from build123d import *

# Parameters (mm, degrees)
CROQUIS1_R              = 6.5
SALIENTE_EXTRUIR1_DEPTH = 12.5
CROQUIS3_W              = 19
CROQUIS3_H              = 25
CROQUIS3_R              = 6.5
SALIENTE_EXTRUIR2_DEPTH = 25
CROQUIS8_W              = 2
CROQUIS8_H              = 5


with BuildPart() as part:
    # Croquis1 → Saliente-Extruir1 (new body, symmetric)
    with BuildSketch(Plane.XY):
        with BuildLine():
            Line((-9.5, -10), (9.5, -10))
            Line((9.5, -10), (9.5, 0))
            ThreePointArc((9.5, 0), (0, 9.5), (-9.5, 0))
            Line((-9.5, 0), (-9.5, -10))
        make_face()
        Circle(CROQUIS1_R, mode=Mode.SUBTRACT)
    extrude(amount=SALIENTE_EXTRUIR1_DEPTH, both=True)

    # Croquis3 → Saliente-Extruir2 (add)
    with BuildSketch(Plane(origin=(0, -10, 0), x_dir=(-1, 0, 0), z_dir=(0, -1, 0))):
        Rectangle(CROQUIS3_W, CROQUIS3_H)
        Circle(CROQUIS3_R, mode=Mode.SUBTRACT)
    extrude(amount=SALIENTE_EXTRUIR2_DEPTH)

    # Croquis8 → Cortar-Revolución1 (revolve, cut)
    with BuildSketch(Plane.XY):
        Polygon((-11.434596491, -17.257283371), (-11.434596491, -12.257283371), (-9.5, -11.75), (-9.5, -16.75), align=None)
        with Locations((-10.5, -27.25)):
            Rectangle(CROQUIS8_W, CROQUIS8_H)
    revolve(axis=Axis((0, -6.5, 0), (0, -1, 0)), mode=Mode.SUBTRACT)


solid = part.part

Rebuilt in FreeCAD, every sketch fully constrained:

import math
import FreeCAD as App
import Part
import Sketcher

V = App.Vector


def add_polygon(sketch, points):
    """Adds a closed chain of lines whose ends are joined by coincident constraints."""
    first, n = sketch.GeometryCount, len(points)
    for a, b in zip(points, points[1:] + points[:1]):
        sketch.addGeometry(Part.LineSegment(App.Vector(*a, 0), App.Vector(*b, 0)), False)
    for i in range(n):
        sketch.addConstraint(Sketcher.Constraint("Coincident", first + i, 2, first + (i + 1) % n, 1))

doc = App.newDocument("Part")
params = doc.addObject("Spreadsheet::Sheet", "Params")
for row, (alias, value) in enumerate([
    ("sketch1_diameter", "13 mm"),
    ("sketch1_radius", "9.5 mm"),
    ("sketch1_height", "10 mm"),
    ("pad1_length", "25 mm"),
    ("sketch2_diameter", "13 mm"),
    ("sketch2_width", "19 mm"),
    ("sketch2_height", "25 mm"),
    ("pad2_length", "25 mm"),
    ("sketch3_width", "2 mm"),
    ("sketch3_height", "5 mm"),
    ("sketch3_length", "2 mm"),
    ("groove_angle", "360 deg"),
], start=1):
    params.set(f"A{row}", alias)
    params.set(f"B{row}", "=" + value)
    params.setAlias(f"B{row}", alias)

body = doc.addObject("PartDesign::Body", "Body")

# Sketch on XY plane
sketch1 = body.newObject("Sketcher::SketchObject", "Sketch")
sketch1.AttachmentSupport = (doc.getObject("XY_Plane"), [""])
sketch1.MapMode = "FlatFace"
sketch1.addGeometry([
    Part.LineSegment(V(-10, -10, 0), V(10, -10, 0)),  # 0
    Part.LineSegment(V(10, -10, 0), V(10, 0, 0)),  # 1
    Part.ArcOfCircle(Part.Circle(V(0, 0, 0), V(0, 0, 1), 10), math.radians(0), math.radians(180)),  # 2
    Part.LineSegment(V(-10, 0, 0), V(-10, -10, 0)),  # 3
    Part.Circle(V(0, 0, 0), V(0, 0, 1), 6),  # 4
], False)
sketch1.addConstraint([
    Sketcher.Constraint("Coincident", 0, 2, 1, 1),
    Sketcher.Constraint("Tangent", 1, 2, 2, 1),
    Sketcher.Constraint("Tangent", 2, 2, 3, 1),
    Sketcher.Constraint("Coincident", 3, 2, 0, 1),
    Sketcher.Constraint("Horizontal", 0),
    Sketcher.Constraint("Vertical", 1),
    Sketcher.Constraint("Vertical", 3),
    Sketcher.Constraint("Coincident", 2, 3, -1, 1),
    Sketcher.Constraint("Coincident", 4, 3, -1, 1),
    Sketcher.Constraint("Diameter", 4, 13.0),
    Sketcher.Constraint("Radius", 2, 9.5),
    Sketcher.Constraint("DistanceY", 1, 1, 1, 2, 10.0),
])
sketch1.setExpression("Constraints[9]", "Params.sketch1_diameter")
sketch1.setExpression("Constraints[10]", "Params.sketch1_radius")
sketch1.setExpression("Constraints[11]", "Params.sketch1_height")
pad1 = body.newObject("PartDesign::Pad", "Pad")
pad1.Profile = sketch1
pad1.setExpression("Length", "Params.pad1_length")
pad1.Midplane = True

# Sketch on XZ plane
sketch2 = body.newObject("Sketcher::SketchObject", "Sketch001")
sketch2.AttachmentSupport = (doc.getObject("XZ_Plane"), [""])
sketch2.MapMode = "FlatFace"
sketch2.AttachmentOffset = App.Placement(V(0, 0, 10), App.Rotation())
add_polygon(sketch2, [(10, -12), (10, 12), (-10, 12), (-10, -12)])  # lines 0-3
sketch2.addGeometry(Part.Circle(V(0, 0, 0), V(0, 0, 1), 6), False)  # 4
sketch2.addConstraint([
    Sketcher.Constraint("Vertical", 0),
    Sketcher.Constraint("Horizontal", 1),
    Sketcher.Constraint("Vertical", 2),
    Sketcher.Constraint("Horizontal", 3),
    Sketcher.Constraint("Coincident", 4, 3, -1, 1),
    Sketcher.Constraint("Symmetric", 0, 2, 2, 2, -1, 1),
    Sketcher.Constraint("Diameter", 4, 13.0),
    Sketcher.Constraint("DistanceX", 1, 2, 1, 1, 19.0),
    Sketcher.Constraint("DistanceY", 0, 1, 0, 2, 25.0),
])
sketch2.setExpression("Constraints[10]", "Params.sketch2_diameter")
sketch2.setExpression("Constraints[11]", "Params.sketch2_width")
sketch2.setExpression("Constraints[12]", "Params.sketch2_height")
pad2 = body.newObject("PartDesign::Pad", "Pad001")
pad2.Profile = sketch2
pad2.setExpression("Length", "Params.pad2_length")

# Sketch on XY plane
sketch3 = body.newObject("Sketcher::SketchObject", "Sketch002")
sketch3.AttachmentSupport = (doc.getObject("XY_Plane"), [""])
sketch3.MapMode = "FlatFace"
add_polygon(sketch3, [(-11.4, -12.3), (-11.4, -17.3), (-9.5, -16.8), (-9.5, -11.8)])  # lines 0-3
add_polygon(sketch3, [(-11.5, -24.8), (-11.5, -29.8), (-9.5, -29.8), (-9.5, -24.8)])  # lines 4-7
sketch3.addConstraint([
    Sketcher.Constraint("Vertical", 0),
    Sketcher.Constraint("Vertical", 2),
    Sketcher.Constraint("Vertical", 4),
    Sketcher.Constraint("Horizontal", 5),
    Sketcher.Constraint("Vertical", 6),
    Sketcher.Constraint("Horizontal", 7),
    Sketcher.Constraint("Parallel", 1, 3),
    Sketcher.Constraint("Vertical", 2, 2, 5, 2),
    Sketcher.Constraint("Equal", 2, 4),
    Sketcher.Constraint("DistanceX", 5, 1, 5, 2, 2.0),
    Sketcher.Constraint("DistanceY", 0, 2, 0, 1, 5.0),
    Sketcher.Constraint("Distance", 1, 2.0),
    Sketcher.Constraint("DistanceY", 4, 2, 1, 2, 13.0),
    Sketcher.Constraint("DistanceX", 1, 2, -1, 1, 9.5),
    Sketcher.Constraint("DistanceY", 1, 2, -1, 1, 16.75),
    Sketcher.Constraint("DistanceX", 0, 2, -1, 1, 11.434596),
])
sketch3.setExpression("Constraints[17]", "Params.sketch3_width")
sketch3.setExpression("Constraints[18]", "Params.sketch3_height")
sketch3.setExpression("Constraints[19]", "Params.sketch3_length")
groove = body.newObject("PartDesign::Groove", "Groove")
groove.Profile = sketch3
groove.ReferenceAxis = (sketch3, ["V_Axis"])
groove.setExpression("Angle", "Params.groove_angle")

doc.recompute()
